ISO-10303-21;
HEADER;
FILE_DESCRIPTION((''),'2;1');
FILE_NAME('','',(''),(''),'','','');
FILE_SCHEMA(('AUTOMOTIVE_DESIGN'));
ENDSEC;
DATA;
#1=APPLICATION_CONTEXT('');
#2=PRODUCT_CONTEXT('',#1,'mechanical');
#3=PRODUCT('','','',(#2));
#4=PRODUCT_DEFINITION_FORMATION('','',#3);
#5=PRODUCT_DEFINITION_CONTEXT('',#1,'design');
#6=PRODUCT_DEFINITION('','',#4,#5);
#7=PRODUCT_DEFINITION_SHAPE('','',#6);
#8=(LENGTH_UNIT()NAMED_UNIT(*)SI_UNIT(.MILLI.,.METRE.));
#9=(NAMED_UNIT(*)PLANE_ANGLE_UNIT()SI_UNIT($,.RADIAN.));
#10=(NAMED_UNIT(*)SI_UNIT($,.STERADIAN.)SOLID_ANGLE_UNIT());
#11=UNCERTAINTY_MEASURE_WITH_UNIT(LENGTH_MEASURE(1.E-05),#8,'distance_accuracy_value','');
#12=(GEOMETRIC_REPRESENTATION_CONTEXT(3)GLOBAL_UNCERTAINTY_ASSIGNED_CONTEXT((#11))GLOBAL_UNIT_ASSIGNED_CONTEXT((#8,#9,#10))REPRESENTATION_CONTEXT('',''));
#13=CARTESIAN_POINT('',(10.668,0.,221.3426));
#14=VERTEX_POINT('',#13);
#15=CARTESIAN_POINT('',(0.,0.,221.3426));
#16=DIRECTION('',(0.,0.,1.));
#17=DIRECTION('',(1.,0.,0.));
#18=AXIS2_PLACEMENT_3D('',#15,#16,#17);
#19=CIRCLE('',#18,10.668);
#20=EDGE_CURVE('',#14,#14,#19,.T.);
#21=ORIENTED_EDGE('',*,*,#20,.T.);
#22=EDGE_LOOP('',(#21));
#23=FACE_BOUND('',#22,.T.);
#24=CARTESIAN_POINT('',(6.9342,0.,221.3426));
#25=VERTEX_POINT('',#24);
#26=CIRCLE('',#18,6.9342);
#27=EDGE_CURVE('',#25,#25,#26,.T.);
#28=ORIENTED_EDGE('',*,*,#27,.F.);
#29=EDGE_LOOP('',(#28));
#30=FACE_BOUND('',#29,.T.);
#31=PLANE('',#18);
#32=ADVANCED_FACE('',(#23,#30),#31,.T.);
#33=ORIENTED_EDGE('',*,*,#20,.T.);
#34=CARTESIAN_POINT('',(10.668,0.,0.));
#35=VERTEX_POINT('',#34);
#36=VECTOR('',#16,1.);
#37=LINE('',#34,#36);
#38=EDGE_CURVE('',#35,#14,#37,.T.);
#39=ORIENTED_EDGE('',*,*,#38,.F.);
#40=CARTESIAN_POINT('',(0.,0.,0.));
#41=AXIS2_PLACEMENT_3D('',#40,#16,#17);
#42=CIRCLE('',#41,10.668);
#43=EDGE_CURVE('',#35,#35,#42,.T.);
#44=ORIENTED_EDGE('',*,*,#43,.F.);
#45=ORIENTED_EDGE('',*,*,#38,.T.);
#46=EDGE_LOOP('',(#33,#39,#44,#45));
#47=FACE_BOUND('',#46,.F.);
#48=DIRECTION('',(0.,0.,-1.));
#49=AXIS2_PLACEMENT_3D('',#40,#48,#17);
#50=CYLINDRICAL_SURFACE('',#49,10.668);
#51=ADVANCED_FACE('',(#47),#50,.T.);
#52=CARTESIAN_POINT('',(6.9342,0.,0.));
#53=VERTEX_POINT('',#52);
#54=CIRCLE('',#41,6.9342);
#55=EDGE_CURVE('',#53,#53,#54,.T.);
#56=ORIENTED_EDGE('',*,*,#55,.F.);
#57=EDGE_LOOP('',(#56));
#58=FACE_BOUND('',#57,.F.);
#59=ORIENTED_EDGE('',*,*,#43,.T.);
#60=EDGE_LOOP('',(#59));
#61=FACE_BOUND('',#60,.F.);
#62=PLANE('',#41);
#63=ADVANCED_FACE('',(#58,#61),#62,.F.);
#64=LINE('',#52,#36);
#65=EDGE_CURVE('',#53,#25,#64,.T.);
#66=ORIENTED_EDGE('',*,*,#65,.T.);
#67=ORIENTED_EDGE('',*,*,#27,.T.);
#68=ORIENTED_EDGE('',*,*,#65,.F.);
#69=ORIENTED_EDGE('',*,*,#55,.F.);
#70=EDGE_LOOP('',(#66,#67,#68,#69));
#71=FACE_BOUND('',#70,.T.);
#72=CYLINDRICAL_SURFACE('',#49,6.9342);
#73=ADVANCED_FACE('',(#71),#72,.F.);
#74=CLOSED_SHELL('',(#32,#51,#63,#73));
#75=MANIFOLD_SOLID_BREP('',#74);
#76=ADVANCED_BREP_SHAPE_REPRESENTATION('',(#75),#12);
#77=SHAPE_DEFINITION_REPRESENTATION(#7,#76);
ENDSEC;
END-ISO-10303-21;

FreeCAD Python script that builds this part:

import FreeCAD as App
import Part
import Sketcher

V = App.Vector
Q = App.Units.Quantity

doc = App.newDocument("Part")
body = doc.addObject("PartDesign::Body", "Body")

sketch1 = body.newObject("Sketcher::SketchObject", "Sketch")
sketch1.AttachmentSupport = (doc.getObject("XY_Plane"), [""])
sketch1.MapMode = "FlatFace"
sketch1.addGeometry(Part.Circle(V(0, 0, 0), V(0, 0, 1), 11), False)
sketch1.addGeometry(Part.Circle(V(0, 0, 0), V(0, 0, 1), 7), False)
sketch1.addConstraint(Sketcher.Constraint("Coincident", 0, 3, -1, 1))
sketch1.addConstraint(Sketcher.Constraint("Coincident", 1, 3, -1, 1))
sketch1.addConstraint(Sketcher.Constraint("Diameter", 0, Q("0.84 in")))
sketch1.addConstraint(Sketcher.Constraint("Diameter", 1, Q("0.546 in")))
pad1 = body.newObject("PartDesign::Pad", "Pad")
pad1.Profile = sketch1
pad1.Length = 221.3426

doc.recompute()
